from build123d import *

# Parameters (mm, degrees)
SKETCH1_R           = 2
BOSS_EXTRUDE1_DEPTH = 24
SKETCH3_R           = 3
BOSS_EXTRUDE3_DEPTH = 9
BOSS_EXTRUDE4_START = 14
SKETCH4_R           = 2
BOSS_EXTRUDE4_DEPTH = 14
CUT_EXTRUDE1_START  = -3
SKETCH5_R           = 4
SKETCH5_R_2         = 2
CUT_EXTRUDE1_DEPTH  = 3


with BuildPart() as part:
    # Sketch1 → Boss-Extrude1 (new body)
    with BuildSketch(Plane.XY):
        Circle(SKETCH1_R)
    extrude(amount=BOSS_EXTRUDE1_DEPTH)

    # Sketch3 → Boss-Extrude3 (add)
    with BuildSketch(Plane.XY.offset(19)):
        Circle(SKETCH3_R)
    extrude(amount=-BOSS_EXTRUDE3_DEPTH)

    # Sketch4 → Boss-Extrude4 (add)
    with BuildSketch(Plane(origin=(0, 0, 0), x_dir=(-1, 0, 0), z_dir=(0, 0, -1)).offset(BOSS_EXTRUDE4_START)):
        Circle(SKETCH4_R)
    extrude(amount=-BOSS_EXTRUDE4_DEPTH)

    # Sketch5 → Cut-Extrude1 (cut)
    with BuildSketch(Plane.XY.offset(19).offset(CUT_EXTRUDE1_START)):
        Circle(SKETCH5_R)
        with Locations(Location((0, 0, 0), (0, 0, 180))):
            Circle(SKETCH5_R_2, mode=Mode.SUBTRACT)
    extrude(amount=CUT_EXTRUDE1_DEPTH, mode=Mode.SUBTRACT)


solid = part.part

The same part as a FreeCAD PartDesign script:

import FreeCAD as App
import Part
import Sketcher
Q = App.Units.Quantity

doc = App.newDocument("Part")
body = doc.addObject("PartDesign::Body", "Body")

# Sketch on XY plane
sketch1 = body.newObject("Sketcher::SketchObject", "Sketch")
sketch1.AttachmentSupport = (doc.getObject("XY_Plane"), [""])
sketch1.MapMode = "FlatFace"
sketch1.addGeometry(Part.Circle(App.Vector(0, 0, 0), App.Vector(0, 0, 1), 2), False)
sketch1.addConstraint([
    Sketcher.Constraint("Coincident", 0, 3, -1, 1),
    Sketcher.Constraint("Diameter", 0, Q("4 mm")),
])
pad1 = body.newObject("PartDesign::Pad", "Pad")
pad1.Profile = sketch1
pad1.Length = 24

# Sketch on XY plane
sketch2 = body.newObject("Sketcher::SketchObject", "Sketch001")
sketch2.AttachmentSupport = (doc.getObject("XY_Plane"), [""])
sketch2.MapMode = "FlatFace"
sketch2.AttachmentOffset = App.Placement(App.Vector(0, 0, 19), App.Rotation())
sketch2.addGeometry(Part.Circle(App.Vector(0, 0, 0), App.Vector(0, 0, 1), 3), False)
sketch2.addConstraint([
    Sketcher.Constraint("Coincident", 0, 3, -1, 1),
    Sketcher.Constraint("Diameter", 0, Q("6 mm")),
])
pad2 = body.newObject("PartDesign::Pad", "Pad001")
pad2.Profile = sketch2
pad2.Length = 9
pad2.Reversed = True

# Sketch on XY plane
sketch3 = body.newObject("Sketcher::SketchObject", "Sketch002")
sketch3.AttachmentSupport = (doc.getObject("XY_Plane"), [""])
sketch3.MapMode = "FlatFace"
sketch3.AttachmentOffset = App.Placement(App.Vector(0, 0, -14), App.Rotation())
sketch3.addGeometry(Part.Circle(App.Vector(0, 0, 0), App.Vector(0, 0, 1), 2), False)
sketch3.addConstraint([
    Sketcher.Constraint("Coincident", 0, 3, -1, 1),
    Sketcher.Constraint("Diameter", 0, Q("4 mm")),
])
pad3 = body.newObject("PartDesign::Pad", "Pad002")
pad3.Profile = sketch3
pad3.Length = 14

# Sketch on XY plane
sketch4 = body.newObject("Sketcher::SketchObject", "Sketch003")
sketch4.AttachmentSupport = (doc.getObject("XY_Plane"), [""])
sketch4.MapMode = "FlatFace"
sketch4.AttachmentOffset = App.Placement(App.Vector(0, 0, 16), App.Rotation())
sketch4.addGeometry([
    Part.Circle(App.Vector(0, 0, 0), App.Vector(0, 0, 1), 4),
    Part.Circle(App.Vector(0, 0, 0), App.Vector(0, 0, 1), 2),
], False)
sketch4.addConstraint([
    Sketcher.Constraint("Coincident", 0, 3, -1, 1),
    Sketcher.Constraint("Coincident", 1, 3, -1, 1),
    Sketcher.Constraint("Diameter", 0, Q("8 mm")),
    Sketcher.Constraint("Diameter", 1, Q("4 mm")),
])
pocket1 = body.newObject("PartDesign::Pocket", "Pocket")
pocket1.Profile = sketch4
pocket1.Length = 3
pocket1.Reversed = True

doc.recompute()
